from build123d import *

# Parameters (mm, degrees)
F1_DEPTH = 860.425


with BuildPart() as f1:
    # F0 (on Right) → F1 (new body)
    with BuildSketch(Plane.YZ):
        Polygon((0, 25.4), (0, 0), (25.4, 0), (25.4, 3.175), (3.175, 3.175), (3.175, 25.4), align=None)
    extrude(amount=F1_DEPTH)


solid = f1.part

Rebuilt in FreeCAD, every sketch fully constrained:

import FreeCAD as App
import Part
import Sketcher
Q = App.Units.Quantity


def add_polygon(sketch, points):
    """Adds a closed chain of lines whose ends are joined by coincident constraints."""
    first, n = sketch.GeometryCount, len(points)
    for a, b in zip(points, points[1:] + points[:1]):
        sketch.addGeometry(Part.LineSegment(App.Vector(*a, 0), App.Vector(*b, 0)), False)
    for i in range(n):
        sketch.addConstraint(Sketcher.Constraint("Coincident", first + i, 2, first + (i + 1) % n, 1))

doc = App.newDocument("Part")
body = doc.addObject("PartDesign::Body", "Body")

# Sketch on YZ plane
sketch1 = doc.addObject("Sketcher::SketchObject", "Sketch")
body.addObject(sketch1)
sketch1.AttachmentSupport = (doc.YZ_Plane, [""])
sketch1.MapMode = "FlatFace"
add_polygon(sketch1, [(0, 25.4), (0, 0), (25.4, 0), (25.4, 3.2), (3.2, 3.2), (3.2, 25.4)])  # lines 0-5
sketch1.addConstraint([
    Sketcher.Constraint("Vertical", 0),
    Sketcher.Constraint("Horizontal", 1),
    Sketcher.Constraint("Vertical", 2),
    Sketcher.Constraint("Horizontal", 3),
    Sketcher.Constraint("Vertical", 4),
    Sketcher.Constraint("Horizontal", 5),
    Sketcher.Constraint("Coincident", 0, 2, -1, 1),
    Sketcher.Constraint("Equal", 1, 0),
    Sketcher.Constraint("Equal", 5, 2),
    Sketcher.Constraint("DistanceX", 1, 1, 1, 2, Q("1 in")),
    Sketcher.Constraint("DistanceX", 3, 2, 3, 1, Q("0.875 in")),
])
pad1 = doc.addObject("PartDesign::Pad", "Pad")
body.addObject(pad1)
pad1.Profile = sketch1
pad1.Length = Q("33.875 in")

doc.recompute()
